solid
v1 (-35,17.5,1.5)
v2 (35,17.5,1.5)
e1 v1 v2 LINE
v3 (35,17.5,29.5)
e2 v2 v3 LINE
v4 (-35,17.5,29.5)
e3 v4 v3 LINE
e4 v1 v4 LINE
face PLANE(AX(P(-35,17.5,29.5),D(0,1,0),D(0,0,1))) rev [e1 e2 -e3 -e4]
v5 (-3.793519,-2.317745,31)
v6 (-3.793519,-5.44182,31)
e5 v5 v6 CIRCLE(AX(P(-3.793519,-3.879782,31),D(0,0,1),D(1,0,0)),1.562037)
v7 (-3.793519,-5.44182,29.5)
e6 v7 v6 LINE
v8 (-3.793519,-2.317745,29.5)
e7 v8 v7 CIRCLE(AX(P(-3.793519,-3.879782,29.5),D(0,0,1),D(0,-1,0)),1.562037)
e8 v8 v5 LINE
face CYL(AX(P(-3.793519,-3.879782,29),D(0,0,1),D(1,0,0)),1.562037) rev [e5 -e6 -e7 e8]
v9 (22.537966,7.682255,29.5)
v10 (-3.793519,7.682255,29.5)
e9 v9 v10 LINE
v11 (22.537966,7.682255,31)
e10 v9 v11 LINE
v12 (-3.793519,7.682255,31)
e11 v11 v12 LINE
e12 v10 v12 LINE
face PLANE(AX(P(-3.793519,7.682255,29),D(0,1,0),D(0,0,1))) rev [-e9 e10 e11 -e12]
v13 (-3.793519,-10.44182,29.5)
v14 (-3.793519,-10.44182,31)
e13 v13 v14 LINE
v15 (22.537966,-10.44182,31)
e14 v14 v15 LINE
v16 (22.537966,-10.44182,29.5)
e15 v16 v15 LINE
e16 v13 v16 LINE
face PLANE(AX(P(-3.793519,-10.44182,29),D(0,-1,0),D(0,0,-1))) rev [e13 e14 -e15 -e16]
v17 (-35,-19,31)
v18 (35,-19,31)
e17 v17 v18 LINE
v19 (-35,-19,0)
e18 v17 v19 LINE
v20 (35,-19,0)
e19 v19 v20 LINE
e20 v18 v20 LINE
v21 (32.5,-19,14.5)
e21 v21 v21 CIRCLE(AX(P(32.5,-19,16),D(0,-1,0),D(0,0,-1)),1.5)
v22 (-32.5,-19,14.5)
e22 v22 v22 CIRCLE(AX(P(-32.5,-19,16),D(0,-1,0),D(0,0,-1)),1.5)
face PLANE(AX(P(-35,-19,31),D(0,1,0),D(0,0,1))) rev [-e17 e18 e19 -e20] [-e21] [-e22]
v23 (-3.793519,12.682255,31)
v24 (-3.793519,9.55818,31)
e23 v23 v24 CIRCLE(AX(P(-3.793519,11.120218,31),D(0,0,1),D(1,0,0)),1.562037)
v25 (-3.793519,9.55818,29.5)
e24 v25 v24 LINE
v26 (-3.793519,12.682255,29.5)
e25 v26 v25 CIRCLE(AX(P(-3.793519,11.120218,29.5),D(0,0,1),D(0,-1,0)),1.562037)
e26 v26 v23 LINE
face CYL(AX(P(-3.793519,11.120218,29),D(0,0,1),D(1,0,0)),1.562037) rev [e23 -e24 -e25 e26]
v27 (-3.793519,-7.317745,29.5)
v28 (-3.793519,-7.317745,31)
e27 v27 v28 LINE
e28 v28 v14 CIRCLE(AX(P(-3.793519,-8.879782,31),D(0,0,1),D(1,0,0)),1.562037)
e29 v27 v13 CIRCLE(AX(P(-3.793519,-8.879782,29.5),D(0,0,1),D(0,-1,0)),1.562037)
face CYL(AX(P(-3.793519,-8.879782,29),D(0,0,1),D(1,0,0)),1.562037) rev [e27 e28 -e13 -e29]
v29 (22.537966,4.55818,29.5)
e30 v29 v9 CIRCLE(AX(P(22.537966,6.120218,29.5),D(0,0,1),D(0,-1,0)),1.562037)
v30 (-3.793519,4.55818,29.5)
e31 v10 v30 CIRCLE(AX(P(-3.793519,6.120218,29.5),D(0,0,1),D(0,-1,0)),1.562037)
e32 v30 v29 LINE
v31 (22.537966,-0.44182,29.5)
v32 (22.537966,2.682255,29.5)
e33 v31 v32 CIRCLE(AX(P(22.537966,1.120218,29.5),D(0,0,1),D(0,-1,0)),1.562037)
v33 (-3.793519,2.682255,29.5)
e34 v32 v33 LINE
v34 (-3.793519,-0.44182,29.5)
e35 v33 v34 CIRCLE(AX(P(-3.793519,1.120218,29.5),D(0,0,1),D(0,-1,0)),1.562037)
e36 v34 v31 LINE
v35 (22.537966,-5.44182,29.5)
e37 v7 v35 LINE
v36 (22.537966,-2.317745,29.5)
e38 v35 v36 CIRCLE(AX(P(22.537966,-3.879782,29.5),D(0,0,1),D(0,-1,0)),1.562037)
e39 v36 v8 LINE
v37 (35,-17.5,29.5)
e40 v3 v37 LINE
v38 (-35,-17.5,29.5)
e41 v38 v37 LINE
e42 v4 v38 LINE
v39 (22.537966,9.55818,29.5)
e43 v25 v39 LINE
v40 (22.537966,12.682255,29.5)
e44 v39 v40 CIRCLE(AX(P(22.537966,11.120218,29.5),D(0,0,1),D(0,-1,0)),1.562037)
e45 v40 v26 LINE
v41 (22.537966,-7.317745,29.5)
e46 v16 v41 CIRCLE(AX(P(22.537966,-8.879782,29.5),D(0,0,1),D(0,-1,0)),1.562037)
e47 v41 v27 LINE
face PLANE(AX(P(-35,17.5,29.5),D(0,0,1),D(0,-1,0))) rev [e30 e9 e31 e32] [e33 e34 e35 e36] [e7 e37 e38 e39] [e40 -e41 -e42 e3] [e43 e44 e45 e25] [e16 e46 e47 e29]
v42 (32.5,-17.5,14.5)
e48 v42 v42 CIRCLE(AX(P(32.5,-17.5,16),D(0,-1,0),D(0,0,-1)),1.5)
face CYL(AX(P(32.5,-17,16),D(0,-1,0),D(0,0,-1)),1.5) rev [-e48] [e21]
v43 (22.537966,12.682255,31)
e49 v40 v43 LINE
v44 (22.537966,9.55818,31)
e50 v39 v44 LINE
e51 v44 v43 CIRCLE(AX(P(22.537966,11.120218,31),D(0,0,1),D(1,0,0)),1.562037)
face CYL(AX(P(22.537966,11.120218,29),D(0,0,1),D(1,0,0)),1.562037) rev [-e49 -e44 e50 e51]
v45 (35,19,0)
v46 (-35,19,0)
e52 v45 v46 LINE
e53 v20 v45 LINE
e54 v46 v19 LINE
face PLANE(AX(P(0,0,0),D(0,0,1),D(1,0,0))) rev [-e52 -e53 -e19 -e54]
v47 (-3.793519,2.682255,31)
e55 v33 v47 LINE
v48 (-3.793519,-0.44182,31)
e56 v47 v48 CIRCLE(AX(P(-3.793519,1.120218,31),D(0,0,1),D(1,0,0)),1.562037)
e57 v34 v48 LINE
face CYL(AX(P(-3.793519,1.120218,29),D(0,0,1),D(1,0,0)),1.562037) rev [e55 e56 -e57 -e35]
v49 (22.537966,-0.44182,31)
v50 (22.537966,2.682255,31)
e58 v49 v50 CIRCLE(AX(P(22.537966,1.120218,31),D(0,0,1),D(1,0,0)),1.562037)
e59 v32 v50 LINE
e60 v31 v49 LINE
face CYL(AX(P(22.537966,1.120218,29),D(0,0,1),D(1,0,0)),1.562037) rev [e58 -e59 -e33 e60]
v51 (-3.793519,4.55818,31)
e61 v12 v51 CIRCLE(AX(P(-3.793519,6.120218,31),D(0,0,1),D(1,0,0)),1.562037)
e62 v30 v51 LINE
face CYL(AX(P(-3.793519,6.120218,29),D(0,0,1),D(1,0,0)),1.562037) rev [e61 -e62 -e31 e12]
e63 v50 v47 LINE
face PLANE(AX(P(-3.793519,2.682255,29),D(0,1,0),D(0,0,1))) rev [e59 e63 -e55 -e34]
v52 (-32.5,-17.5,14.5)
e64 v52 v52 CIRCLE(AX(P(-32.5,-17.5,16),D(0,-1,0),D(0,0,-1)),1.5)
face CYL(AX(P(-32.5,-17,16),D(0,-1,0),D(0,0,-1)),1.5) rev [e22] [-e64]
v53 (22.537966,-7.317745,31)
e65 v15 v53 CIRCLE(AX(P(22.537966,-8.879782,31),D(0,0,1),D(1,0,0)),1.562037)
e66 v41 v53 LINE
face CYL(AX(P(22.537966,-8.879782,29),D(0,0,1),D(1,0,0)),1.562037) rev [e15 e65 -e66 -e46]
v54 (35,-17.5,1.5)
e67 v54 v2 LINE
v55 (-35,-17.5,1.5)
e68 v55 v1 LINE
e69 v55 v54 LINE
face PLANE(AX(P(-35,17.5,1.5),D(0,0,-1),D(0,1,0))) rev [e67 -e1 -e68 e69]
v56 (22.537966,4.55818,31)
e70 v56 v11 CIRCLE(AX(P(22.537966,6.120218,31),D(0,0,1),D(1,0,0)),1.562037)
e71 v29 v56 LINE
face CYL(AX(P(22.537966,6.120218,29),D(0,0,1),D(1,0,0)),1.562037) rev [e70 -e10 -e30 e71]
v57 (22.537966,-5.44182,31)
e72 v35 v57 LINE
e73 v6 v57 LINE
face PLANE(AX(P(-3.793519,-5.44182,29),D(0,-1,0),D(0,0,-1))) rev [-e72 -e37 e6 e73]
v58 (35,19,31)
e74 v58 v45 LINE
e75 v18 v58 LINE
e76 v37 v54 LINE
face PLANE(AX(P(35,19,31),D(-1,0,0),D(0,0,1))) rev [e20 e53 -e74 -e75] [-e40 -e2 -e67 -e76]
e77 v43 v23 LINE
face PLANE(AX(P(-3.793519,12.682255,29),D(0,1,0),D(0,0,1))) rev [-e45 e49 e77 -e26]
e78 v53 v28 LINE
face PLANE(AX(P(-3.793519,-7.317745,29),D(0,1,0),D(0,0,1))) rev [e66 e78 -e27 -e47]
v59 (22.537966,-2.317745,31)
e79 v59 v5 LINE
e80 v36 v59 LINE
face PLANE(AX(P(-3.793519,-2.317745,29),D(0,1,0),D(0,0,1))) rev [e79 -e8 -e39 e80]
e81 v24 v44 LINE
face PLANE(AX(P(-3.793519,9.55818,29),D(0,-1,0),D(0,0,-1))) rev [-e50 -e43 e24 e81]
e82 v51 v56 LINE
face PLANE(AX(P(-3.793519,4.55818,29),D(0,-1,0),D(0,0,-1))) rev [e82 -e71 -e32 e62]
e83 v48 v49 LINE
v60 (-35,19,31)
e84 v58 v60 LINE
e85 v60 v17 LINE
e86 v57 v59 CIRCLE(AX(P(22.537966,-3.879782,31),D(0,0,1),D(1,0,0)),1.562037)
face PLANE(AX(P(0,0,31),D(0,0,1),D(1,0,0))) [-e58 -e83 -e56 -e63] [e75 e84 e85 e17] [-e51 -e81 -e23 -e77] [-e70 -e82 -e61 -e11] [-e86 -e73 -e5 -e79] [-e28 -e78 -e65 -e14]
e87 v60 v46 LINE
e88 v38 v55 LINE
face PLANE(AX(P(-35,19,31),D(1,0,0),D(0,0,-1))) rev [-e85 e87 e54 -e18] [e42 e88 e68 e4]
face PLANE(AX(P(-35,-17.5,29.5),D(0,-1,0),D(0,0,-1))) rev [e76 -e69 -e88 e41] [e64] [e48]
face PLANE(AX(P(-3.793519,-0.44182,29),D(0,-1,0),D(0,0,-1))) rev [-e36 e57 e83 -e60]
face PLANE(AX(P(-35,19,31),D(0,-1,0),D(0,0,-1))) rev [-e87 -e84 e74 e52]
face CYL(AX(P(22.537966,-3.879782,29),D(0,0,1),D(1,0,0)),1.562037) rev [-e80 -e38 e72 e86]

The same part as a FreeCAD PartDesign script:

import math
import FreeCAD as App
import Part
import Sketcher
Q = App.Units.Quantity


def add_polygon(sketch, points):
    """Adds a closed chain of lines whose ends are joined by coincident constraints."""
    first, n = sketch.GeometryCount, len(points)
    for a, b in zip(points, points[1:] + points[:1]):
        sketch.addGeometry(Part.LineSegment(App.Vector(*a, 0), App.Vector(*b, 0)), False)
    for i in range(n):
        sketch.addConstraint(Sketcher.Constraint("Coincident", first + i, 2, first + (i + 1) % n, 1))

doc = App.newDocument("Part")
body = doc.addObject("PartDesign::Body", "Body")

# Sketch on XY plane
sketch1 = body.newObject("Sketcher::SketchObject", "Sketch")
sketch1.AttachmentSupport = (doc.getObject("XY_Plane"), [""])
sketch1.MapMode = "FlatFace"
add_polygon(sketch1, [(-35, 19), (-35, -19), (35, -19), (35, 19)])  # lines 0-3
sketch1.addConstraint([
    Sketcher.Constraint("Vertical", 0),
    Sketcher.Constraint("Horizontal", 1),
    Sketcher.Constraint("Vertical", 2),
    Sketcher.Constraint("Horizontal", 3),
    Sketcher.Constraint("Symmetric", 0, 2, 2, 2, -1, 1),
    Sketcher.Constraint("DistanceX", 1, 1, 1, 2, Q("70 mm")),
    Sketcher.Constraint("DistanceY", 0, 2, 0, 1, Q("38 mm")),
])
pad1 = body.newObject("PartDesign::Pad", "Pad")
pad1.Profile = sketch1
pad1.Length = 31

# Sketch on YZ plane
sketch2 = body.newObject("Sketcher::SketchObject", "Sketch001")
sketch2.AttachmentSupport = (doc.getObject("YZ_Plane"), [""])
sketch2.MapMode = "FlatFace"
sketch2.AttachmentOffset = App.Placement(App.Vector(0, 0, 35), App.Rotation())
add_polygon(sketch2, [(18, 30), (-18, 30), (-18, 2), (18, 2)])  # lines 0-3
sketch2.addConstraint([
    Sketcher.Constraint("Horizontal", 0),
    Sketcher.Constraint("Vertical", 1),
    Sketcher.Constraint("Horizontal", 2),
    Sketcher.Constraint("Vertical", 3),
    Sketcher.Constraint("DistanceX", 0, 2, 0, 1, Q("35 mm")),
    Sketcher.Constraint("DistanceY", 1, 2, 1, 1, Q("28 mm")),
    Sketcher.Constraint("DistanceX", 0, 2, -1, 1, Q("17.5 mm")),
    Sketcher.Constraint("DistanceY", -1, 1, 0, 2, Q("29.5 mm")),
])
pocket1 = body.newObject("PartDesign::Pocket", "Pocket")
pocket1.Profile = sketch2
pocket1.Type = "ThroughAll"

# Sketch on XY plane
sketch3 = body.newObject("Sketcher::SketchObject", "Sketch002")
sketch3.AttachmentSupport = (doc.getObject("XY_Plane"), [""])
sketch3.MapMode = "FlatFace"
sketch3.AttachmentOffset = App.Placement(App.Vector(0, 0, 31), App.Rotation())
sketch3.addGeometry([
    Part.LineSegment(App.Vector(22.5, 12.7, 0), App.Vector(-3.8, 12.7, 0)),  # 0
    Part.ArcOfCircle(Part.Circle(App.Vector(-3.8, 11.1, 0), App.Vector(0, 0, 1), 1.6), math.radians(90), math.radians(270)),  # 1
    Part.LineSegment(App.Vector(-3.8, 9.6, 0), App.Vector(22.5, 9.6, 0)),  # 2
    Part.ArcOfCircle(Part.Circle(App.Vector(22.5, 11.1, 0), App.Vector(0, 0, 1), 1.6), math.radians(-90), math.radians(90)),  # 3
    Part.LineSegment(App.Vector(-3.8, 4.6, 0), App.Vector(22.5, 4.6, 0)),  # 4
    Part.ArcOfCircle(Part.Circle(App.Vector(22.5, 6.1, 0), App.Vector(0, 0, 1), 1.6), math.radians(-90), math.radians(90)),  # 5
    Part.LineSegment(App.Vector(22.5, 7.7, 0), App.Vector(-3.8, 7.7, 0)),  # 6
    Part.ArcOfCircle(Part.Circle(App.Vector(-3.8, 6.1, 0), App.Vector(0, 0, 1), 1.6), math.radians(90), math.radians(270)),  # 7
    Part.LineSegment(App.Vector(-3.8, -0.4, 0), App.Vector(22.5, -0.4, 0)),  # 8
    Part.ArcOfCircle(Part.Circle(App.Vector(22.5, 1.1, 0), App.Vector(0, 0, 1), 1.6), math.radians(-90), math.radians(90)),  # 9
    Part.LineSegment(App.Vector(22.5, 2.7, 0), App.Vector(-3.8, 2.7, 0)),  # 10
    Part.ArcOfCircle(Part.Circle(App.Vector(-3.8, 1.1, 0), App.Vector(0, 0, 1), 1.6), math.radians(90), math.radians(270)),  # 11
    Part.LineSegment(App.Vector(-3.8, -5.4, 0), App.Vector(22.5, -5.4, 0)),  # 12
    Part.ArcOfCircle(Part.Circle(App.Vector(22.5, -3.9, 0), App.Vector(0, 0, 1), 1.6), math.radians(-90), math.radians(90)),  # 13
    Part.LineSegment(App.Vector(22.5, -2.3, 0), App.Vector(-3.8, -2.3, 0)),  # 14
    Part.ArcOfCircle(Part.Circle(App.Vector(-3.8, -3.9, 0), App.Vector(0, 0, 1), 1.6), math.radians(90), math.radians(270)),  # 15
    Part.LineSegment(App.Vector(-3.8, -10.4, 0), App.Vector(22.5, -10.4, 0)),  # 16
    Part.ArcOfCircle(Part.Circle(App.Vector(22.5, -8.9, 0), App.Vector(0, 0, 1), 1.6), math.radians(-90), math.radians(90)),  # 17
    Part.LineSegment(App.Vector(22.5, -7.3, 0), App.Vector(-3.8, -7.3, 0)),  # 18
    Part.ArcOfCircle(Part.Circle(App.Vector(-3.8, -8.9, 0), App.Vector(0, 0, 1), 1.6), math.radians(90), math.radians(270)),  # 19
], False)
sketch3.addConstraint([
    Sketcher.Constraint("Tangent", 0, 2, 1, 1),
    Sketcher.Constraint("Tangent", 1, 2, 2, 1),
    Sketcher.Constraint("Tangent", 2, 2, 3, 1),
    Sketcher.Constraint("Tangent", 3, 2, 0, 1),
    Sketcher.Constraint("Tangent", 4, 2, 5, 1),
    Sketcher.Constraint("Tangent", 5, 2, 6, 1),
    Sketcher.Constraint("Tangent", 6, 2, 7, 1),
    Sketcher.Constraint("Tangent", 7, 2, 4, 1),
    Sketcher.Constraint("Tangent", 8, 2, 9, 1),
    Sketcher.Constraint("Tangent", 9, 2, 10, 1),
    Sketcher.Constraint("Tangent", 10, 2, 11, 1),
    Sketcher.Constraint("Tangent", 11, 2, 8, 1),
    Sketcher.Constraint("Tangent", 12, 2, 13, 1),
    Sketcher.Constraint("Tangent", 13, 2, 14, 1),
    Sketcher.Constraint("Tangent", 14, 2, 15, 1),
    Sketcher.Constraint("Tangent", 15, 2, 12, 1),
    Sketcher.Constraint("Tangent", 16, 2, 17, 1),
    Sketcher.Constraint("Tangent", 17, 2, 18, 1),
    Sketcher.Constraint("Tangent", 18, 2, 19, 1),
    Sketcher.Constraint("Tangent", 19, 2, 16, 1),
    Sketcher.Constraint("Horizontal", 0),
    Sketcher.Constraint("Horizontal", 2),
    Sketcher.Constraint("Horizontal", 4),
    Sketcher.Constraint("Horizontal", 6),
    Sketcher.Constraint("Horizontal", 8),
    Sketcher.Constraint("Horizontal", 10),
    Sketcher.Constraint("Horizontal", 12),
    Sketcher.Constraint("Horizontal", 14),
    Sketcher.Constraint("Horizontal", 16),
    Sketcher.Constraint("Horizontal", 18),
    Sketcher.Constraint("Equal", 3, 5),
    Sketcher.Constraint("Equal", 7, 9),
    Sketcher.Constraint("Equal", 11, 13),
    Sketcher.Constraint("Equal", 15, 17),
    Sketcher.Constraint("Vertical", 3, 3, 5, 3),
    Sketcher.Constraint("Vertical", 1, 3, 7, 3),
    Sketcher.Constraint("Vertical", 5, 3, 9, 3),
    Sketcher.Constraint("Vertical", 7, 3, 11, 3),
    Sketcher.Constraint("Vertical", 9, 3, 13, 3),
    Sketcher.Constraint("Vertical", 11, 3, 15, 3),
    Sketcher.Constraint("Vertical", 13, 3, 17, 3),
    Sketcher.Constraint("Vertical", 15, 3, 19, 3),
    Sketcher.Constraint("DistanceY", 5, 3, 3, 3, Q("5 mm")),
    Sketcher.Constraint("DistanceY", 9, 3, 5, 3, Q("5 mm")),
    Sketcher.Constraint("DistanceY", 13, 3, 9, 3, Q("5 mm")),
    Sketcher.Constraint("DistanceY", 17, 3, 13, 3, Q("5 mm")),
    Sketcher.Constraint("Radius", 1, Q("1.562037 mm")),
    Sketcher.Constraint("DistanceX", 0, 2, 0, 1, Q("26.331485 mm")),
    Sketcher.Constraint("DistanceX", 1, 3, -1, 1, Q("3.793519 mm")),
    Sketcher.Constraint("DistanceY", -1, 1, 1, 2, Q("9.55818 mm")),
])
pocket2 = body.newObject("PartDesign::Pocket", "Pocket001")
pocket2.Profile = sketch3
pocket2.Length = 2

# Sketch on XZ plane
sketch4 = body.newObject("Sketcher::SketchObject", "Sketch003")
sketch4.AttachmentSupport = (doc.getObject("XZ_Plane"), [""])
sketch4.MapMode = "FlatFace"
sketch4.AttachmentOffset = App.Placement(App.Vector(0, 0, 19), App.Rotation())
sketch4.addGeometry([
    Part.Circle(App.Vector(-32.5, 16, 0), App.Vector(0, 0, 1), 1.5),
    Part.Circle(App.Vector(32.5, 16, 0), App.Vector(0, 0, 1), 1.5),
], False)
sketch4.addConstraint([
    Sketcher.Constraint("Equal", 0, 1),
    Sketcher.Constraint("Symmetric", 0, 3, 1, 3, -2),
    Sketcher.Constraint("Diameter", 0, Q("3 mm")),
    Sketcher.Constraint("DistanceY", -1, 1, 0, 3, Q("16 mm")),
    Sketcher.Constraint("DistanceX", 0, 3, 1, 3, Q("65 mm")),
])
pocket3 = body.newObject("PartDesign::Pocket", "Pocket002")
pocket3.Profile = sketch4
pocket3.Length = 2

doc.recompute()
